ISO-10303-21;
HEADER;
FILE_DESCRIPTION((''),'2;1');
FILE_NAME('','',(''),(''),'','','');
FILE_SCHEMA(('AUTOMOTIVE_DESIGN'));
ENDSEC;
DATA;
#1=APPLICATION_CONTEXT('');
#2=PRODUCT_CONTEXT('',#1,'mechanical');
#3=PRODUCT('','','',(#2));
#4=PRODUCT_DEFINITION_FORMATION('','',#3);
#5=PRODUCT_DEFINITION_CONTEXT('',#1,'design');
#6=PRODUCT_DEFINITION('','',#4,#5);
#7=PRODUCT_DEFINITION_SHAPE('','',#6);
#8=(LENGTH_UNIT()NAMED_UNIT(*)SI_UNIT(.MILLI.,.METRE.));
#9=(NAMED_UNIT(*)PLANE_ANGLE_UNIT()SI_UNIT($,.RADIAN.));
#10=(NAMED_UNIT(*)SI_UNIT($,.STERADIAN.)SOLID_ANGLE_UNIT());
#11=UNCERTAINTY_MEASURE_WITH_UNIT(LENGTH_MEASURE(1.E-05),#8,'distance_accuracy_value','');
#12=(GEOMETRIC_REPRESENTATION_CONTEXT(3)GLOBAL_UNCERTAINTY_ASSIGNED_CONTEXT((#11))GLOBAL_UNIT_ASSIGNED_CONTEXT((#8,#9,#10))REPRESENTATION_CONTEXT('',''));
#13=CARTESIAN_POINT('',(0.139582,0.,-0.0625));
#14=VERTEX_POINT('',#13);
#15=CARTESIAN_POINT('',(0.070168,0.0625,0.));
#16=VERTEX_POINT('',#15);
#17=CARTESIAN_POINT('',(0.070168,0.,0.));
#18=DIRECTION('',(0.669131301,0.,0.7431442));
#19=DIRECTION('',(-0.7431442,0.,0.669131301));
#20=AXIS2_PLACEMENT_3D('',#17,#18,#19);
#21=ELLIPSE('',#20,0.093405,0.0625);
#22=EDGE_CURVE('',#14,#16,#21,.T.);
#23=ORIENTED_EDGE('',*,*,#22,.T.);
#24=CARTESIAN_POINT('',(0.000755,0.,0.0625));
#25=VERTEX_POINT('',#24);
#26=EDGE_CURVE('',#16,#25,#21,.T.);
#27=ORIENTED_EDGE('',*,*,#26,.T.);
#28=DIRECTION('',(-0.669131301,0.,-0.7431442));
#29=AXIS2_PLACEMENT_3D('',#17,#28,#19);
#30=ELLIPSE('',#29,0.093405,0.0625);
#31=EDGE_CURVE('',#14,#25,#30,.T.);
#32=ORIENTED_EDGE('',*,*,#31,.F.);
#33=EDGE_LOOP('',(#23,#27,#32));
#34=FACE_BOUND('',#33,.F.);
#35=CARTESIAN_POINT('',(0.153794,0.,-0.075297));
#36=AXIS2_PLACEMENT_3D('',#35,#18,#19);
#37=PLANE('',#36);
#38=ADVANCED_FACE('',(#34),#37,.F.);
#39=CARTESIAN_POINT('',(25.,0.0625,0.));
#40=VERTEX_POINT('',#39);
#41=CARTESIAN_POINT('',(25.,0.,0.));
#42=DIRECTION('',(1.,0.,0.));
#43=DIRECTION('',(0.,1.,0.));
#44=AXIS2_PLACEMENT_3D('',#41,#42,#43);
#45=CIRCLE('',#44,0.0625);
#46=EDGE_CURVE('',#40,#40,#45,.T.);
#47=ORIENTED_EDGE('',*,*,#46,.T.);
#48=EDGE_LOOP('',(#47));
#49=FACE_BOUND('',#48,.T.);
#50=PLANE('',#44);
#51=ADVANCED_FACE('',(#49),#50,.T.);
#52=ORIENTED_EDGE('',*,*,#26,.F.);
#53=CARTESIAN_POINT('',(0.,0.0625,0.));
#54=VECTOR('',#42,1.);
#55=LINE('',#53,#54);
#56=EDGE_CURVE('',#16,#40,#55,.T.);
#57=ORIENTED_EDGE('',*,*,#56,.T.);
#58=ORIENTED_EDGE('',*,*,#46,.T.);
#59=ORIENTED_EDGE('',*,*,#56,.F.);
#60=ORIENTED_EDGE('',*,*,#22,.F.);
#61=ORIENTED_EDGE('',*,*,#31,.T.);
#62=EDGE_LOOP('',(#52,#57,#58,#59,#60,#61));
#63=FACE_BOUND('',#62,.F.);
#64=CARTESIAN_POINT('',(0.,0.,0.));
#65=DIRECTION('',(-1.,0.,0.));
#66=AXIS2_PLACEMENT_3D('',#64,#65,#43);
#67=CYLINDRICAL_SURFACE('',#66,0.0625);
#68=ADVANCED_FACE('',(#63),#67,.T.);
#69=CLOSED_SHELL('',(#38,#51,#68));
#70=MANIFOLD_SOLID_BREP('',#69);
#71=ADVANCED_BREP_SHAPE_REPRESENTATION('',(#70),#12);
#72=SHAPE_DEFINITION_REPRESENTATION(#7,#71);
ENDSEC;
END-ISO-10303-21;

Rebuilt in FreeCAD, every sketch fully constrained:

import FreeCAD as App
import Part
import Sketcher


def add_polygon(sketch, points):
    """Adds a closed chain of lines whose ends are joined by coincident constraints."""
    first, n = sketch.GeometryCount, len(points)
    for a, b in zip(points, points[1:] + points[:1]):
        sketch.addGeometry(Part.LineSegment(App.Vector(*a, 0), App.Vector(*b, 0)), False)
    for i in range(n):
        sketch.addConstraint(Sketcher.Constraint("Coincident", first + i, 2, first + (i + 1) % n, 1))

doc = App.newDocument("Part")
params = doc.addObject("Spreadsheet::Sheet", "Params")
for row, (alias, value) in enumerate([
    ("pad1_length", "25 mm"),
    ("pocket1_length", "25 mm"),
    ("pocket2_length", "25 mm"),
], start=1):
    params.set(f"A{row}", alias)
    params.set(f"B{row}", "=" + value)
    params.setAlias(f"B{row}", alias)

body = doc.addObject("PartDesign::Body", "Body")

sketch1 = body.newObject("Sketcher::SketchObject", "Sketch")
sketch1.AttachmentSupport = (doc.getObject("YZ_Plane"), [""])
sketch1.MapMode = "FlatFace"
sketch1.addGeometry(Part.Circle(App.Vector(0, 0, 0), App.Vector(0, 0, 1), 0.06), False)
sketch1.addConstraint(Sketcher.Constraint("Coincident", 0, 3, -1, 1))
sketch1.addConstraint(Sketcher.Constraint("Diameter", 0, 0.125))
pad1 = body.newObject("PartDesign::Pad", "Pad")
pad1.Profile = sketch1
pad1.setExpression("Length", "Params.pad1_length")

sketch2 = body.newObject("Sketcher::SketchObject", "Sketch001")
sketch2.AttachmentSupport = (doc.getObject("XZ_Plane"), [""])
sketch2.MapMode = "FlatFace"
add_polygon(sketch2, [(0.15, -0.08), (0, 0.06), (0, -0.08)])
sketch2.addConstraint(Sketcher.Constraint("Vertical", 1))
sketch2.addConstraint(Sketcher.Constraint("Horizontal", 2))
sketch2.addConstraint(Sketcher.Constraint("PointOnObject", 0, 2, -2))
sketch2.addConstraint(Sketcher.Constraint("Distance", 0, 0.20695))
sketch2.addConstraint(Sketcher.Constraint("DistanceX", 2, 1, 2, 2, 0.153794))
sketch2.addConstraint(Sketcher.Constraint("DistanceY", -1, 1, 0, 2, 0.06318))
pocket1 = body.newObject("PartDesign::Pocket", "Pocket")
pocket1.Profile = sketch2
pocket1.setExpression("Length", "Params.pocket1_length")

sketch3 = body.newObject("Sketcher::SketchObject", "Sketch002")
sketch3.AttachmentSupport = (doc.getObject("XZ_Plane"), [""])
sketch3.MapMode = "FlatFace"
add_polygon(sketch3, [(0.15, -0.08), (0, 0.06), (0, -0.08)])
sketch3.addConstraint(Sketcher.Constraint("Vertical", 1))
sketch3.addConstraint(Sketcher.Constraint("Horizontal", 2))
sketch3.addConstraint(Sketcher.Constraint("PointOnObject", 0, 2, -2))
sketch3.addConstraint(Sketcher.Constraint("Distance", 0, 0.20695))
sketch3.addConstraint(Sketcher.Constraint("DistanceX", 2, 1, 2, 2, 0.153794))
sketch3.addConstraint(Sketcher.Constraint("DistanceY", -1, 1, 0, 2, 0.06318))
pocket2 = body.newObject("PartDesign::Pocket", "Pocket001")
pocket2.Profile = sketch3
pocket2.setExpression("Length", "Params.pocket2_length")
pocket2.Reversed = True

doc.recompute()
